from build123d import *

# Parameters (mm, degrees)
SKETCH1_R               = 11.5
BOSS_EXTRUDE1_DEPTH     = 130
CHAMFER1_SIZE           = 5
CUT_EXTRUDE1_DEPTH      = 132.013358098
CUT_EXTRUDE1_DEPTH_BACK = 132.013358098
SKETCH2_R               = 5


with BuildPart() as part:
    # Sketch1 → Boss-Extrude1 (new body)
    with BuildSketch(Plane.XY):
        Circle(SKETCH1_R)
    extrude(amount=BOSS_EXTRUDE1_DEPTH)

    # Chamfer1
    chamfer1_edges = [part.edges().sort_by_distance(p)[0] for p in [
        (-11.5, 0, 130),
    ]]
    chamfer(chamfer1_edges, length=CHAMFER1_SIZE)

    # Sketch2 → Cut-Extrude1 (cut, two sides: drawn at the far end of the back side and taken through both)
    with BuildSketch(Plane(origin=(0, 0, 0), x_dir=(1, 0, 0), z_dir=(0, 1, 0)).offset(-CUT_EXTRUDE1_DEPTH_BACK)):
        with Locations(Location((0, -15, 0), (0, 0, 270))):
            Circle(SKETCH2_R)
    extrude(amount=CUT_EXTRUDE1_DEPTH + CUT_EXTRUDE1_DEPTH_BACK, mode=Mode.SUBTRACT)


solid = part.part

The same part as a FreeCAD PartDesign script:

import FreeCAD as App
import Part
import Sketcher
Q = App.Units.Quantity


def edges_at(feature, points):
    """Names of the edges that pass closest to the given points."""
    edges = feature.Shape.Edges
    near = lambda p: min(range(len(edges)), key=lambda i: edges[i].distToShape(Part.Vertex(*p))[0])
    return sorted({f"Edge{near(p) + 1}" for p in points})

doc = App.newDocument("Part")
body = doc.addObject("PartDesign::Body", "Body")

# Sketch on XY plane
sketch1 = body.newObject("Sketcher::SketchObject", "Sketch")
sketch1.AttachmentSupport = (doc.getObject("XY_Plane"), [""])
sketch1.MapMode = "FlatFace"
sketch1.addGeometry(Part.Circle(App.Vector(0, 0, 0), App.Vector(0, 0, 1), 12), False)
sketch1.addConstraint([
    Sketcher.Constraint("Coincident", 0, 3, -1, 1),
    Sketcher.Constraint("Diameter", 0, Q("23 mm")),
])
pad1 = body.newObject("PartDesign::Pad", "Pad")
pad1.Profile = sketch1
pad1.Length = 130
doc.recompute()

chamfer = body.newObject("PartDesign::Chamfer", "Chamfer")
chamfer.Base = (pad1, edges_at(pad1, [(-11.5, 0, 130)]))
chamfer.Size = 5

# Sketch on XZ plane
sketch2 = body.newObject("Sketcher::SketchObject", "Sketch001")
sketch2.AttachmentSupport = (doc.getObject("XZ_Plane"), [""])
sketch2.MapMode = "FlatFace"
sketch2.addGeometry(Part.Circle(App.Vector(0, 15, 0), App.Vector(0, 0, 1), 5), False)
sketch2.addConstraint([
    Sketcher.Constraint("PointOnObject", 0, 3, -2),
    Sketcher.Constraint("Diameter", 0, Q("10 mm")),
    Sketcher.Constraint("DistanceY", -1, 1, 0, 3, Q("15 mm")),
])
pocket1 = body.newObject("PartDesign::Pocket", "Pocket")
pocket1.Profile = sketch2
pocket1.Type = "ThroughAll"
pocket1.Midplane = True

doc.recompute()
